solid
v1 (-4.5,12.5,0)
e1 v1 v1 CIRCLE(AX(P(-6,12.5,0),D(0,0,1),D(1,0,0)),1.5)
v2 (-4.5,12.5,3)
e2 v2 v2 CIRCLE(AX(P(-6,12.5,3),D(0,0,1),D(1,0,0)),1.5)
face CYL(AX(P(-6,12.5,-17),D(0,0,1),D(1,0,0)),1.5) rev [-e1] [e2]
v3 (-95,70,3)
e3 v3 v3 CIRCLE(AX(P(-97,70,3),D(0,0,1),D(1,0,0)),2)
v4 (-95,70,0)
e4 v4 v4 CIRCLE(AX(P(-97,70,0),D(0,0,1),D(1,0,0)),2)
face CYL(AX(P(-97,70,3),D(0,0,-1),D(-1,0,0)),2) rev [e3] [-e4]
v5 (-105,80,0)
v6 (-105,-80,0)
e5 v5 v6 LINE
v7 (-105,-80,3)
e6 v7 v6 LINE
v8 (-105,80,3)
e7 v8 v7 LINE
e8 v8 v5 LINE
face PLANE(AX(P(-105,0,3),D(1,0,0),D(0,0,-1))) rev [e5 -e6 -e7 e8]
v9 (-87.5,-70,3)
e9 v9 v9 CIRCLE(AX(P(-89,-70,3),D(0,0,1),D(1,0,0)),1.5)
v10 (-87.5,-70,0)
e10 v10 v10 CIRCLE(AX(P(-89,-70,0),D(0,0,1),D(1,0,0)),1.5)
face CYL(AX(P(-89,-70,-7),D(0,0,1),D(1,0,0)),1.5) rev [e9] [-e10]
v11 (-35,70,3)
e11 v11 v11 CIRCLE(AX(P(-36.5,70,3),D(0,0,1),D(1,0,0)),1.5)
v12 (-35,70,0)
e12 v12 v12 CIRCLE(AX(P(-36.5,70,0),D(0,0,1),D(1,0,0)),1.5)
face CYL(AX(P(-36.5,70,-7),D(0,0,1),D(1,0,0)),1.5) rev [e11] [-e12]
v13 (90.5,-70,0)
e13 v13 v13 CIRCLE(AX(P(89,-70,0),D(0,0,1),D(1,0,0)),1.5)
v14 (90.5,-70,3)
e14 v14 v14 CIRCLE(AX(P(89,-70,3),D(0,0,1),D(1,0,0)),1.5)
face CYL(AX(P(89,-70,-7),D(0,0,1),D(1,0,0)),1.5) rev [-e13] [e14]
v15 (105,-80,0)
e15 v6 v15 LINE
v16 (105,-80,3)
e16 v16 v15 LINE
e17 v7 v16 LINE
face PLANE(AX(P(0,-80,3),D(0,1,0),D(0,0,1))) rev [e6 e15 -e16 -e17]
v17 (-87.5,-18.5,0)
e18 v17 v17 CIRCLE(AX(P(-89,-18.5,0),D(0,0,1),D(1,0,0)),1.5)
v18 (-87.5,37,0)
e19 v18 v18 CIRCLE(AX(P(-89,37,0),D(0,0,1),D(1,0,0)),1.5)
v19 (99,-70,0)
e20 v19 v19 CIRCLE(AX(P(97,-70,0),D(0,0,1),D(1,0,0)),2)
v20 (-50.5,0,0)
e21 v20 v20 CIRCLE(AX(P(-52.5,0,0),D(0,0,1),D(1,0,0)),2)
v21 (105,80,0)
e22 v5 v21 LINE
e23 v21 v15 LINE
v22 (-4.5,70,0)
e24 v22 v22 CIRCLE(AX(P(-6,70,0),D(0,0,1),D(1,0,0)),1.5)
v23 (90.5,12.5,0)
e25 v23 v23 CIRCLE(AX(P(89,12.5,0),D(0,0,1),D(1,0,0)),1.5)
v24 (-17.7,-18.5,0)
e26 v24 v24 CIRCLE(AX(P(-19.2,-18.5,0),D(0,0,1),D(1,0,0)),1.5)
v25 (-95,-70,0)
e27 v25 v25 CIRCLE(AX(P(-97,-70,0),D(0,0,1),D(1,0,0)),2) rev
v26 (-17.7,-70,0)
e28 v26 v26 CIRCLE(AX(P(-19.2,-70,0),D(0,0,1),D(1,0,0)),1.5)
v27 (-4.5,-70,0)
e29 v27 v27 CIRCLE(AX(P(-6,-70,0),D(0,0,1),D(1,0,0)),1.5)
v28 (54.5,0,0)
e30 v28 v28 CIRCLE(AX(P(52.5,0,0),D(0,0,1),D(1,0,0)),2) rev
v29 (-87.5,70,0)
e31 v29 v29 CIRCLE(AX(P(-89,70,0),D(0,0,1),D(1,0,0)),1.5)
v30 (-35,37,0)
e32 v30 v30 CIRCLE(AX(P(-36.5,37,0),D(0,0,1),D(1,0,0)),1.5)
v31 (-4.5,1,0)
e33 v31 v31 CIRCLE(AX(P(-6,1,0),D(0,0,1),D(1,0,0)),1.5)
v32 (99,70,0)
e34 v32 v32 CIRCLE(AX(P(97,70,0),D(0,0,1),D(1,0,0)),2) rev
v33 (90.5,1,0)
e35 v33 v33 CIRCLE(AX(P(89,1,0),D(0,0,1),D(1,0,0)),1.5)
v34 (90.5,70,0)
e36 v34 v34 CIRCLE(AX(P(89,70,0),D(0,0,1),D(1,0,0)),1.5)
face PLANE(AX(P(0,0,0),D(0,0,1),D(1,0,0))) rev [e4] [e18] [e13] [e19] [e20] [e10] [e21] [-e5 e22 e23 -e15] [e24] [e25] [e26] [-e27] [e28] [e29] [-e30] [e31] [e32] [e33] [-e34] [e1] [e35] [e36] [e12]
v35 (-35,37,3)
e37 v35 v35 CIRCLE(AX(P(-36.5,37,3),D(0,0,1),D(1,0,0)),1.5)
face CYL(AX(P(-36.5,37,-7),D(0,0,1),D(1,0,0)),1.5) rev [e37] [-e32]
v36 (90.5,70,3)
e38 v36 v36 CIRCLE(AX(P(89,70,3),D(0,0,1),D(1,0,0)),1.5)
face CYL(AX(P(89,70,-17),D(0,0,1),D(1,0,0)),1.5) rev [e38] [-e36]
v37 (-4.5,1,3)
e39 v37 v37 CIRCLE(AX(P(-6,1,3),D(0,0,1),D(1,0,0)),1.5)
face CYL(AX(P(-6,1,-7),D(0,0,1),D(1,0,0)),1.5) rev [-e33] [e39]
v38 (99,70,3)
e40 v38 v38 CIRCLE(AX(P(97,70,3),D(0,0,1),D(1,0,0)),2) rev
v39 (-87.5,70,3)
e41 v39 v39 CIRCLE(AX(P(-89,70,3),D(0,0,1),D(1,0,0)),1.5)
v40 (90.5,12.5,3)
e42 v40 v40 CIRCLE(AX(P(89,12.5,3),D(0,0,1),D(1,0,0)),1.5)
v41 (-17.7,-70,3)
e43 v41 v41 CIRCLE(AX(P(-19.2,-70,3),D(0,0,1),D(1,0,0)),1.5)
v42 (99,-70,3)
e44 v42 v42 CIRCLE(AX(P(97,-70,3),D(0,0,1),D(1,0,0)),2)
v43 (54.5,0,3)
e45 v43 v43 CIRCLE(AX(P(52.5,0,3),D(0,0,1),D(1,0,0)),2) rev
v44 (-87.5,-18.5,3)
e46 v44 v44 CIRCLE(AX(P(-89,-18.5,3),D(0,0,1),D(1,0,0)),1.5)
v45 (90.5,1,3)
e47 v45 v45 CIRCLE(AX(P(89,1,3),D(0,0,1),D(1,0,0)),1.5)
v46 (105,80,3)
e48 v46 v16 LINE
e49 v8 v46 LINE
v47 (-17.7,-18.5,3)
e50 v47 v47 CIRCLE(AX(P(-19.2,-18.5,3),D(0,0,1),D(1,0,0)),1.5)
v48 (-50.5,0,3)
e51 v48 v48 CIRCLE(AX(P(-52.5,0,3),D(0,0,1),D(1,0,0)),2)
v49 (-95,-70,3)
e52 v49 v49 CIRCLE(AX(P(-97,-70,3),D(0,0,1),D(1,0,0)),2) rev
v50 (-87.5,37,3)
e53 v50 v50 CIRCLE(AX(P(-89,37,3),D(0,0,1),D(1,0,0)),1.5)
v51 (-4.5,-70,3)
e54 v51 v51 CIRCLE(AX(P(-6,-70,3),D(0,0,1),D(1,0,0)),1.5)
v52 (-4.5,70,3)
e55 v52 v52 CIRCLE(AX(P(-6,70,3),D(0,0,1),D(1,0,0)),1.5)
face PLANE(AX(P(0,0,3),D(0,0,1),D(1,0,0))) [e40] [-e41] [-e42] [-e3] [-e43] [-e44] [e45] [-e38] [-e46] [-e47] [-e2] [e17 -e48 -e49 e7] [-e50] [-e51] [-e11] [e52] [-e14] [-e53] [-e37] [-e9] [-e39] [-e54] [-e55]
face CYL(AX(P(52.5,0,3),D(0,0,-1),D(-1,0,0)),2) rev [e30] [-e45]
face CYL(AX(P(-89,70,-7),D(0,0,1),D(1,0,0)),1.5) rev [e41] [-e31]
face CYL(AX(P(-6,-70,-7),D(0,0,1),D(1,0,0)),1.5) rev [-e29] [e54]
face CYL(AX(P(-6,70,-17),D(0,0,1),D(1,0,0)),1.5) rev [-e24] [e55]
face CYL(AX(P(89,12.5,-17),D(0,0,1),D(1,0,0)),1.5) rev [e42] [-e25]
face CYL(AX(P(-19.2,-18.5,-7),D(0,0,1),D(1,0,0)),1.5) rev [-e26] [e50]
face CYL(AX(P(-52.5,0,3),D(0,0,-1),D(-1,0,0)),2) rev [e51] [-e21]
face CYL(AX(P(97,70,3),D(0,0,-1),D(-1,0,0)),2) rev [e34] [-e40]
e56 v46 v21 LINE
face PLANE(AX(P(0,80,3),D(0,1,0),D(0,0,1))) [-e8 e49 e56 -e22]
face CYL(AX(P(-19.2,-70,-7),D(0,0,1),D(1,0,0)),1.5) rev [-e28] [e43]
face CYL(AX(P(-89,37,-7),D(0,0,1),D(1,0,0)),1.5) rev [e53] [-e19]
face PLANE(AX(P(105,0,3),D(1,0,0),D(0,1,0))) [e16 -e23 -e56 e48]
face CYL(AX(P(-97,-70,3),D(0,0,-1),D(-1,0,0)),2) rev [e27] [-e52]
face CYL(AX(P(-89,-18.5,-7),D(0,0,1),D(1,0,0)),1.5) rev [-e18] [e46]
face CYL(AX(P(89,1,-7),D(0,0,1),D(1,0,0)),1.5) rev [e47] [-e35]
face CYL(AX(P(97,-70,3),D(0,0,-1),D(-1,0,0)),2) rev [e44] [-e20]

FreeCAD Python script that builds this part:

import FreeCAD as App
import Part
import Sketcher
from FreeCAD import Vector
Q = App.Units.Quantity

doc = App.newDocument("Part")
params = doc.addObject("Spreadsheet::Sheet", "Params")
for row, (alias, value) in enumerate([
    ("sketch1_diameter", "4 mm"),
    ("sketch1_width", "210 mm"),
    ("sketch1_height", "160 mm"),
    ("pad1_length", "3 mm"),
    ("sketch2_diameter", "3 mm"),
    ("pocket1_length", "20 mm"),
    ("sketch3_diameter", "3 mm"),
    ("pocket2_length", "10 mm"),
    ("sketch4_diameter", "3 mm"),
    ("pocket3_length", "10 mm"),
    ("sketch5_diameter", "3 mm"),
    ("pocket4_length", "10 mm"),
], start=1):
    params.set(f"A{row}", alias)
    params.set(f"B{row}", "=" + value)
    params.setAlias(f"B{row}", alias)

body = doc.addObject("PartDesign::Body", "Body")

# Sketch on XY plane
sketch1 = doc.addObject("Sketcher::SketchObject", "Sketch")
body.addObject(sketch1)
sketch1.AttachmentSupport = (doc.XY_Plane, [""])
sketch1.MapMode = "FlatFace"
sketch1.addGeometry([
    Part.LineSegment(Vector(-105, 80, 0), Vector(-105, -80, 0)),  # 0
    Part.LineSegment(Vector(-105, -80, 0), Vector(105, -80, 0)),  # 1
    Part.LineSegment(Vector(105, -80, 0), Vector(105, 80, 0)),  # 2
    Part.LineSegment(Vector(105, 80, 0), Vector(-105, 80, 0)),  # 3
    Part.Circle(Vector(-97, -70, 0), Vector(0, 0, 1), 2),  # 4
    Part.Circle(Vector(97, -70, 0), Vector(0, 0, 1), 2),  # 5
    Part.Circle(Vector(-52.5, 0, 0), Vector(0, 0, 1), 2),  # 6
    Part.Circle(Vector(-97, 70, 0), Vector(0, 0, 1), 2),  # 7
    Part.Circle(Vector(52.5, 0, 0), Vector(0, 0, 1), 2),  # 8
    Part.Circle(Vector(97, 70, 0), Vector(0, 0, 1), 2),  # 9
], False)
sketch1.addConstraint([
    Sketcher.Constraint("Coincident", 0, 2, 1, 1),
    Sketcher.Constraint("Coincident", 1, 2, 2, 1),
    Sketcher.Constraint("Coincident", 2, 2, 3, 1),
    Sketcher.Constraint("Coincident", 3, 2, 0, 1),
    Sketcher.Constraint("Vertical", 0),
    Sketcher.Constraint("Horizontal", 1),
    Sketcher.Constraint("Vertical", 2),
    Sketcher.Constraint("Horizontal", 3),
    Sketcher.Constraint("Equal", 4, 5),
    Sketcher.Constraint("Equal", 5, 6),
    Sketcher.Constraint("Equal", 6, 7),
    Sketcher.Constraint("Equal", 7, 8),
    Sketcher.Constraint("Equal", 8, 9),
    Sketcher.Constraint("Symmetric", 5, 3, 7, 3, -1, 1),
    Sketcher.Constraint("Symmetric", 6, 3, 8, 3, -1, 1),
    Sketcher.Constraint("Symmetric", 4, 3, 9, 3, -1, 1),
    Sketcher.Constraint("Symmetric", 0, 2, 2, 2, -1, 1),
    Sketcher.Constraint("Symmetric", 4, 3, 5, 3, -2),
    Sketcher.Constraint("PointOnObject", 6, 3, -1),
    Sketcher.Constraint("Diameter", 4, Q("4 mm")),
    Sketcher.Constraint("DistanceX", 1, 1, 1, 2, Q("210 mm")),
    Sketcher.Constraint("DistanceY", 0, 2, 0, 1, Q("160 mm")),
    Sketcher.Constraint("DistanceX", 4, 3, -1, 1, Q("97 mm")),
    Sketcher.Constraint("DistanceY", 4, 3, -1, 1, Q("70 mm")),
    Sketcher.Constraint("DistanceX", 6, 3, 8, 3, Q("105 mm")),
])
sketch1.setExpression("Constraints[19]", "Params.sketch1_diameter")
sketch1.setExpression("Constraints[20]", "Params.sketch1_width")
sketch1.setExpression("Constraints[21]", "Params.sketch1_height")
pad1 = doc.addObject("PartDesign::Pad", "Pad")
body.addObject(pad1)
pad1.Profile = sketch1
pad1.setExpression("Length", "Params.pad1_length")

# Sketch on XY plane
sketch2 = doc.addObject("Sketcher::SketchObject", "Sketch001")
body.addObject(sketch2)
sketch2.AttachmentSupport = (doc.XY_Plane, [""])
sketch2.MapMode = "FlatFace"
sketch2.AttachmentOffset = App.Placement(Vector(0, 0, 3), App.Rotation())
sketch2.addGeometry([
    Part.Circle(Vector(-6, 70, 0), Vector(0, 0, 1), 1.5),
    Part.Circle(Vector(89, 70, 0), Vector(0, 0, 1), 1.5),
    Part.Circle(Vector(-6, 12.5, 0), Vector(0, 0, 1), 1.5),
    Part.Circle(Vector(89, 12.5, 0), Vector(0, 0, 1), 1.5),
], False)
sketch2.addConstraint([
    Sketcher.Constraint("Equal", 0, 1),
    Sketcher.Constraint("Equal", 1, 2),
    Sketcher.Constraint("Equal", 2, 3),
    Sketcher.Constraint("Horizontal", 0, 3, 1, 3),
    Sketcher.Constraint("Horizontal", 2, 3, 3, 3),
    Sketcher.Constraint("Vertical", 0, 3, 2, 3),
    Sketcher.Constraint("Vertical", 1, 3, 3, 3),
    Sketcher.Constraint("Diameter", 0, Q("3 mm")),
    Sketcher.Constraint("DistanceX", 0, 3, -1, 1, Q("6 mm")),
    Sketcher.Constraint("DistanceY", -1, 1, 0, 3, Q("70 mm")),
    Sketcher.Constraint("DistanceX", -1, 1, 1, 3, Q("89 mm")),
    Sketcher.Constraint("DistanceY", -1, 1, 2, 3, Q("12.5 mm")),
])
sketch2.setExpression("Constraints[7]", "Params.sketch2_diameter")
pocket1 = doc.addObject("PartDesign::Pocket", "Pocket")
body.addObject(pocket1)
pocket1.Profile = sketch2
pocket1.setExpression("Length", "Params.pocket1_length")

# Sketch on XY plane
sketch3 = doc.addObject("Sketcher::SketchObject", "Sketch002")
body.addObject(sketch3)
sketch3.AttachmentSupport = (doc.XY_Plane, [""])
sketch3.MapMode = "FlatFace"
sketch3.AttachmentOffset = App.Placement(Vector(0, 0, 3), App.Rotation())
sketch3.addGeometry([
    Part.Circle(Vector(-6, 1, 0), Vector(0, 0, 1), 1.5),
    Part.Circle(Vector(89, 1, 0), Vector(0, 0, 1), 1.5),
    Part.Circle(Vector(-6, -70, 0), Vector(0, 0, 1), 1.5),
    Part.Circle(Vector(89, -70, 0), Vector(0, 0, 1), 1.5),
], False)
sketch3.addConstraint([
    Sketcher.Constraint("Equal", 0, 1),
    Sketcher.Constraint("Equal", 1, 2),
    Sketcher.Constraint("Equal", 2, 3),
    Sketcher.Constraint("Horizontal", 0, 3, 1, 3),
    Sketcher.Constraint("Horizontal", 2, 3, 3, 3),
    Sketcher.Constraint("Vertical", 0, 3, 2, 3),
    Sketcher.Constraint("Vertical", 1, 3, 3, 3),
    Sketcher.Constraint("Diameter", 0, Q("3 mm")),
    Sketcher.Constraint("DistanceX", 0, 3, -1, 1, Q("6 mm")),
    Sketcher.Constraint("DistanceY", -1, 1, 0, 3, Q("1 mm")),
    Sketcher.Constraint("DistanceX", -1, 1, 1, 3, Q("89 mm")),
    Sketcher.Constraint("DistanceY", 2, 3, -1, 1, Q("70 mm")),
])
sketch3.setExpression("Constraints[7]", "Params.sketch3_diameter")
pocket2 = doc.addObject("PartDesign::Pocket", "Pocket001")
body.addObject(pocket2)
pocket2.Profile = sketch3
pocket2.setExpression("Length", "Params.pocket2_length")

# Sketch on XY plane
sketch4 = doc.addObject("Sketcher::SketchObject", "Sketch003")
body.addObject(sketch4)
sketch4.AttachmentSupport = (doc.XY_Plane, [""])
sketch4.MapMode = "FlatFace"
sketch4.AttachmentOffset = App.Placement(Vector(0, 0, 3), App.Rotation())
sketch4.addGeometry([
    Part.Circle(Vector(-89, -18.5, 0), Vector(0, 0, 1), 1.5),
    Part.Circle(Vector(-19.2, -18.5, 0), Vector(0, 0, 1), 1.5),
    Part.Circle(Vector(-89, -70, 0), Vector(0, 0, 1), 1.5),
    Part.Circle(Vector(-19.2, -70, 0), Vector(0, 0, 1), 1.5),
], False)
sketch4.addConstraint([
    Sketcher.Constraint("Equal", 0, 1),
    Sketcher.Constraint("Equal", 1, 2),
    Sketcher.Constraint("Equal", 2, 3),
    Sketcher.Constraint("Horizontal", 0, 3, 1, 3),
    Sketcher.Constraint("Horizontal", 2, 3, 3, 3),
    Sketcher.Constraint("Vertical", 0, 3, 2, 3),
    Sketcher.Constraint("Vertical", 1, 3, 3, 3),
    Sketcher.Constraint("Diameter", 0, Q("3 mm")),
    Sketcher.Constraint("DistanceX", 0, 3, -1, 1, Q("89 mm")),
    Sketcher.Constraint("DistanceY", 2, 3, -1, 1, Q("70 mm")),
    Sketcher.Constraint("DistanceY", 0, 3, -1, 1, Q("18.5 mm")),
    Sketcher.Constraint("DistanceX", 1, 3, -1, 1, Q("19.2 mm")),
])
sketch4.setExpression("Constraints[7]", "Params.sketch4_diameter")
pocket3 = doc.addObject("PartDesign::Pocket", "Pocket002")
body.addObject(pocket3)
pocket3.Profile = sketch4
pocket3.setExpression("Length", "Params.pocket3_length")

# Sketch on XY plane
sketch5 = doc.addObject("Sketcher::SketchObject", "Sketch004")
body.addObject(sketch5)
sketch5.AttachmentSupport = (doc.XY_Plane, [""])
sketch5.MapMode = "FlatFace"
sketch5.AttachmentOffset = App.Placement(Vector(0, 0, 3), App.Rotation())
sketch5.addGeometry([
    Part.Circle(Vector(-89, 70, 0), Vector(0, 0, 1), 1.5),
    Part.Circle(Vector(-36.5, 70, 0), Vector(0, 0, 1), 1.5),
    Part.Circle(Vector(-89, 37, 0), Vector(0, 0, 1), 1.5),
    Part.Circle(Vector(-36.5, 37, 0), Vector(0, 0, 1), 1.5),
], False)
sketch5.addConstraint([
    Sketcher.Constraint("Equal", 0, 1),
    Sketcher.Constraint("Equal", 1, 2),
    Sketcher.Constraint("Equal", 2, 3),
    Sketcher.Constraint("Horizontal", 0, 3, 1, 3),
    Sketcher.Constraint("Horizontal", 2, 3, 3, 3),
    Sketcher.Constraint("Vertical", 0, 3, 2, 3),
    Sketcher.Constraint("Vertical", 1, 3, 3, 3),
    Sketcher.Constraint("Diameter", 0, Q("3 mm")),
    Sketcher.Constraint("DistanceX", 0, 3, -1, 1, Q("89 mm")),
    Sketcher.Constraint("DistanceY", -1, 1, 0, 3, Q("70 mm")),
    Sketcher.Constraint("DistanceY", -1, 1, 2, 3, Q("37 mm")),
    Sketcher.Constraint("DistanceX", 1, 3, -1, 1, Q("36.5 mm")),
])
sketch5.setExpression("Constraints[7]", "Params.sketch5_diameter")
pocket4 = doc.addObject("PartDesign::Pocket", "Pocket003")
body.addObject(pocket4)
pocket4.Profile = sketch5
pocket4.setExpression("Length", "Params.pocket4_length")

doc.recompute()
